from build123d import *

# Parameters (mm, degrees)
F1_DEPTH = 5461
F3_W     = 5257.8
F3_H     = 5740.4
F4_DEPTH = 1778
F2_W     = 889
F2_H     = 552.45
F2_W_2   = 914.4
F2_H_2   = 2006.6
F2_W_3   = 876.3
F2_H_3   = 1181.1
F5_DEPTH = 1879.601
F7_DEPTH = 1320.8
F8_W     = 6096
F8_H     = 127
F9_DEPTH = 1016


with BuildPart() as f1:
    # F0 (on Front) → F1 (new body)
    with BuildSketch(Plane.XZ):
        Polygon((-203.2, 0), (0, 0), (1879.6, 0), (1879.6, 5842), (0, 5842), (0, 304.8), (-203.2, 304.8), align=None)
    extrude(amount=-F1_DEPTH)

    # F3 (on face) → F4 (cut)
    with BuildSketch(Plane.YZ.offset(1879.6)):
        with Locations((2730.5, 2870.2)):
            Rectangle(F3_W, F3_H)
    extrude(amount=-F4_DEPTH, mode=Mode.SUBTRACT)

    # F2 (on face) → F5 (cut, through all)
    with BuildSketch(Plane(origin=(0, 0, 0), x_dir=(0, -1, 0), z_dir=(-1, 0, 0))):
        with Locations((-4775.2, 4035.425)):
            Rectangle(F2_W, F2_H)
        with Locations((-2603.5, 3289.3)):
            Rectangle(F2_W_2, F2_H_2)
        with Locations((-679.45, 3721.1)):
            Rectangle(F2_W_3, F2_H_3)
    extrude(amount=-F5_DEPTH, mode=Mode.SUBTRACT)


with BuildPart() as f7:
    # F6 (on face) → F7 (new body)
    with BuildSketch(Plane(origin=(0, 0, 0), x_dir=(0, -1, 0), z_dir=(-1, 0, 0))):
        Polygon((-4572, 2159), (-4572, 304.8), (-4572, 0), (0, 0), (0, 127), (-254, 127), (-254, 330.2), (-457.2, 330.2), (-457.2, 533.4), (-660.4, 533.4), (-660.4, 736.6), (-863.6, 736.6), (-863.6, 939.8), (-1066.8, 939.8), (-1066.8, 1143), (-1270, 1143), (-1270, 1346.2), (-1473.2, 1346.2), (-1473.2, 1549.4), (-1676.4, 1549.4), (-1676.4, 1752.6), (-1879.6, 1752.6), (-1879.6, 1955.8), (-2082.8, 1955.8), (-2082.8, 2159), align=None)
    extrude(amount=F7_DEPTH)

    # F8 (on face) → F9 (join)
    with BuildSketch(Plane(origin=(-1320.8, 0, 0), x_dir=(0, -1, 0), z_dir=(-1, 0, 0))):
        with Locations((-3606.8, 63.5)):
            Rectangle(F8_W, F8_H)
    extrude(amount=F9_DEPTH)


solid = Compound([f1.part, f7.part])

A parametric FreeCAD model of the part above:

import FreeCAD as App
import Part
import Sketcher
Q = App.Units.Quantity

doc = App.newDocument("Part")
body = doc.addObject("PartDesign::Body", "Body")

sketch1 = doc.addObject("Sketcher::SketchObject", "Sketch")
body.addObject(sketch1)
sketch1.AttachmentSupport = (doc.XZ_Plane, [""])
sketch1.MapMode = "FlatFace"
sketch1.addGeometry(Part.LineSegment(App.Vector(-203, 0, 0), App.Vector(1880, 0, 0)), False)
sketch1.addGeometry(Part.LineSegment(App.Vector(1880, 0, 0), App.Vector(1880, 5842, 0)), False)
sketch1.addGeometry(Part.LineSegment(App.Vector(1880, 5842, 0), App.Vector(0, 5842, 0)), False)
sketch1.addGeometry(Part.LineSegment(App.Vector(0, 5842, 0), App.Vector(0, 305, 0)), False)
sketch1.addGeometry(Part.LineSegment(App.Vector(0, 305, 0), App.Vector(-203, 305, 0)), False)
sketch1.addGeometry(Part.LineSegment(App.Vector(-203, 305, 0), App.Vector(-203, 0, 0)), False)
sketch1.addConstraint(Sketcher.Constraint("Coincident", 0, 2, 1, 1))
sketch1.addConstraint(Sketcher.Constraint("Coincident", 1, 2, 2, 1))
sketch1.addConstraint(Sketcher.Constraint("Coincident", 2, 2, 3, 1))
sketch1.addConstraint(Sketcher.Constraint("Coincident", 3, 2, 4, 1))
sketch1.addConstraint(Sketcher.Constraint("Coincident", 4, 2, 5, 1))
sketch1.addConstraint(Sketcher.Constraint("Coincident", 5, 2, 0, 1))
sketch1.addConstraint(Sketcher.Constraint("Horizontal", 0))
sketch1.addConstraint(Sketcher.Constraint("Vertical", 1))
sketch1.addConstraint(Sketcher.Constraint("Horizontal", 2))
sketch1.addConstraint(Sketcher.Constraint("Vertical", 3))
sketch1.addConstraint(Sketcher.Constraint("Horizontal", 4))
sketch1.addConstraint(Sketcher.Constraint("Vertical", 5))
sketch1.addConstraint(Sketcher.Constraint("PointOnObject", 0, 2, -1))
sketch1.addConstraint(Sketcher.Constraint("PointOnObject", 2, 2, -2))
sketch1.addConstraint(Sketcher.Constraint("DistanceX", 0, 1, 0, 2, Q("82 in")))
sketch1.addConstraint(Sketcher.Constraint("DistanceX", 2, 2, 2, 1, Q("74 in")))
sketch1.addConstraint(Sketcher.Constraint("DistanceY", 1, 1, 1, 2, Q("230 in")))
sketch1.addConstraint(Sketcher.Constraint("DistanceY", 3, 2, 3, 1, Q("218 in")))
pad1 = doc.addObject("PartDesign::Pad", "Pad")
body.addObject(pad1)
pad1.Profile = sketch1
pad1.Length = Q("215 in")
pad1.Reversed = True

sketch2 = doc.addObject("Sketcher::SketchObject", "Sketch001")
body.addObject(sketch2)
sketch2.AttachmentSupport = (doc.YZ_Plane, [""])
sketch2.MapMode = "FlatFace"
sketch2.AttachmentOffset = App.Placement(App.Vector(0, 0, 74 * 25.4), App.Rotation())
sketch2.addGeometry(Part.LineSegment(App.Vector(102, 5740, 0), App.Vector(102, 0, 0)), False)
sketch2.addGeometry(Part.LineSegment(App.Vector(102, 0, 0), App.Vector(5359, 0, 0)), False)
sketch2.addGeometry(Part.LineSegment(App.Vector(5359, 0, 0), App.Vector(5359, 5740, 0)), False)
sketch2.addGeometry(Part.LineSegment(App.Vector(5359, 5740, 0), App.Vector(102, 5740, 0)), False)
sketch2.addConstraint(Sketcher.Constraint("Coincident", 0, 2, 1, 1))
sketch2.addConstraint(Sketcher.Constraint("Coincident", 1, 2, 2, 1))
sketch2.addConstraint(Sketcher.Constraint("Coincident", 2, 2, 3, 1))
sketch2.addConstraint(Sketcher.Constraint("Coincident", 3, 2, 0, 1))
sketch2.addConstraint(Sketcher.Constraint("Vertical", 0))
sketch2.addConstraint(Sketcher.Constraint("Horizontal", 1))
sketch2.addConstraint(Sketcher.Constraint("Vertical", 2))
sketch2.addConstraint(Sketcher.Constraint("Horizontal", 3))
sketch2.addConstraint(Sketcher.Constraint("PointOnObject", 0, 2, -1))
sketch2.addConstraint(Sketcher.Constraint("DistanceX", 1, 1, 1, 2, Q("207 in")))
sketch2.addConstraint(Sketcher.Constraint("DistanceY", 0, 2, 0, 1, Q("226 in")))
sketch2.addConstraint(Sketcher.Constraint("DistanceX", -1, 1, 0, 2, Q("4 in")))
pocket1 = doc.addObject("PartDesign::Pocket", "Pocket")
body.addObject(pocket1)
pocket1.Profile = sketch2
pocket1.Length = Q("70 in")

sketch3 = doc.addObject("Sketcher::SketchObject", "Sketch002")
body.addObject(sketch3)
sketch3.AttachmentSupport = (doc.YZ_Plane, [""])
sketch3.MapMode = "FlatFace"
sketch3.addGeometry(Part.LineSegment(App.Vector(5220, 4312, 0), App.Vector(5220, 3759, 0)), False)
sketch3.addGeometry(Part.LineSegment(App.Vector(5220, 3759, 0), App.Vector(4331, 3759, 0)), False)
sketch3.addGeometry(Part.LineSegment(App.Vector(4331, 3759, 0), App.Vector(4331, 4312, 0)), False)
sketch3.addGeometry(Part.LineSegment(App.Vector(4331, 4312, 0), App.Vector(5220, 4312, 0)), False)
sketch3.addGeometry(Part.LineSegment(App.Vector(3061, 4293, 0), App.Vector(3061, 2286, 0)), False)
sketch3.addGeometry(Part.LineSegment(App.Vector(3061, 2286, 0), App.Vector(2146, 2286, 0)), False)
sketch3.addGeometry(Part.LineSegment(App.Vector(2146, 2286, 0), App.Vector(2146, 4293, 0)), False)
sketch3.addGeometry(Part.LineSegment(App.Vector(2146, 4293, 0), App.Vector(3061, 4293, 0)), False)
sketch3.addGeometry(Part.LineSegment(App.Vector(1118, 4312, 0), App.Vector(1118, 3131, 0)), False)
sketch3.addGeometry(Part.LineSegment(App.Vector(1118, 3131, 0), App.Vector(241, 3131, 0)), False)
sketch3.addGeometry(Part.LineSegment(App.Vector(241, 3131, 0), App.Vector(241, 4312, 0)), False)
sketch3.addGeometry(Part.LineSegment(App.Vector(241, 4312, 0), App.Vector(1118, 4312, 0)), False)
sketch3.addConstraint(Sketcher.Constraint("Coincident", 0, 2, 1, 1))
sketch3.addConstraint(Sketcher.Constraint("Coincident", 1, 2, 2, 1))
sketch3.addConstraint(Sketcher.Constraint("Coincident", 2, 2, 3, 1))
sketch3.addConstraint(Sketcher.Constraint("Coincident", 3, 2, 0, 1))
sketch3.addConstraint(Sketcher.Constraint("Coincident", 4, 2, 5, 1))
sketch3.addConstraint(Sketcher.Constraint("Coincident", 5, 2, 6, 1))
sketch3.addConstraint(Sketcher.Constraint("Coincident", 6, 2, 7, 1))
sketch3.addConstraint(Sketcher.Constraint("Coincident", 7, 2, 4, 1))
sketch3.addConstraint(Sketcher.Constraint("Coincident", 8, 2, 9, 1))
sketch3.addConstraint(Sketcher.Constraint("Coincident", 9, 2, 10, 1))
sketch3.addConstraint(Sketcher.Constraint("Coincident", 10, 2, 11, 1))
sketch3.addConstraint(Sketcher.Constraint("Coincident", 11, 2, 8, 1))
sketch3.addConstraint(Sketcher.Constraint("Vertical", 0))
sketch3.addConstraint(Sketcher.Constraint("Horizontal", 1))
sketch3.addConstraint(Sketcher.Constraint("Vertical", 2))
sketch3.addConstraint(Sketcher.Constraint("Horizontal", 3))
sketch3.addConstraint(Sketcher.Constraint("Vertical", 4))
sketch3.addConstraint(Sketcher.Constraint("Horizontal", 5))
sketch3.addConstraint(Sketcher.Constraint("Vertical", 6))
sketch3.addConstraint(Sketcher.Constraint("Horizontal", 7))
sketch3.addConstraint(Sketcher.Constraint("Vertical", 8))
sketch3.addConstraint(Sketcher.Constraint("Horizontal", 9))
sketch3.addConstraint(Sketcher.Constraint("Vertical", 10))
sketch3.addConstraint(Sketcher.Constraint("Horizontal", 11))
sketch3.addConstraint(Sketcher.Constraint("Horizontal", 3, 2, 10, 2))
sketch3.addConstraint(Sketcher.Constraint("DistanceX", 1, 2, 1, 1, Q("35 in")))
sketch3.addConstraint(Sketcher.Constraint("DistanceX", 5, 2, 5, 1, Q("36 in")))
sketch3.addConstraint(Sketcher.Constraint("DistanceY", 4, 2, 4, 1, Q("79 in")))
sketch3.addConstraint(Sketcher.Constraint("DistanceX", 9, 2, 9, 1, Q("34.5 in")))
sketch3.addConstraint(Sketcher.Constraint("DistanceY", 8, 2, 8, 1, Q("46.5 in")))
sketch3.addConstraint(Sketcher.Constraint("DistanceY", -1, 1, 0, 2, Q("148 in")))
sketch3.addConstraint(Sketcher.Constraint("DistanceY", -1, 1, 4, 2, Q("90 in")))
sketch3.addConstraint(Sketcher.Constraint("DistanceX", -1, 1, 8, 2, Q("44 in")))
sketch3.addConstraint(Sketcher.Constraint("DistanceX", 4, 2, 1, 2, Q("50 in")))
sketch3.addConstraint(Sketcher.Constraint("DistanceX", 9, 2, 5, 2, Q("75 in")))
sketch3.addConstraint(Sketcher.Constraint("DistanceY", 0, 2, 0, 1, Q("21.75 in")))
pocket2 = doc.addObject("PartDesign::Pocket", "Pocket001")
body.addObject(pocket2)
pocket2.Profile = sketch3
pocket2.Type = "ThroughAll"
pocket2.Reversed = True
body2 = doc.addObject("PartDesign::Body", "Body001")

sketch4 = doc.addObject("Sketcher::SketchObject", "Sketch003")
body2.addObject(sketch4)
sketch4.AttachmentSupport = (doc.getObject("YZ_Plane001"), [""])
sketch4.MapMode = "FlatFace"
sketch4.addGeometry(Part.LineSegment(App.Vector(4572, 2159, 0), App.Vector(4572, 0, 0)), False)
sketch4.addGeometry(Part.LineSegment(App.Vector(4572, 0, 0), App.Vector(0, 0, 0)), False)
sketch4.addGeometry(Part.LineSegment(App.Vector(0, 0, 0), App.Vector(0, 127, 0)), False)
sketch4.addGeometry(Part.LineSegment(App.Vector(0, 127, 0), App.Vector(254, 127, 0)), False)
sketch4.addGeometry(Part.LineSegment(App.Vector(254, 127, 0), App.Vector(254, 330, 0)), False)
sketch4.addGeometry(Part.LineSegment(App.Vector(254, 330, 0), App.Vector(457, 330, 0)), False)
sketch4.addGeometry(Part.LineSegment(App.Vector(457, 330, 0), App.Vector(457, 533, 0)), False)
sketch4.addGeometry(Part.LineSegment(App.Vector(457, 533, 0), App.Vector(660, 533, 0)), False)
sketch4.addGeometry(Part.LineSegment(App.Vector(660, 533, 0), App.Vector(660, 737, 0)), False)
sketch4.addGeometry(Part.LineSegment(App.Vector(660, 737, 0), App.Vector(864, 737, 0)), False)
sketch4.addGeometry(Part.LineSegment(App.Vector(864, 737, 0), App.Vector(864, 940, 0)), False)
sketch4.addGeometry(Part.LineSegment(App.Vector(864, 940, 0), App.Vector(1067, 940, 0)), False)
sketch4.addGeometry(Part.LineSegment(App.Vector(1067, 940, 0), App.Vector(1067, 1143, 0)), False)
sketch4.addGeometry(Part.LineSegment(App.Vector(1067, 1143, 0), App.Vector(1270, 1143, 0)), False)
sketch4.addGeometry(Part.LineSegment(App.Vector(1270, 1143, 0), App.Vector(1270, 1346, 0)), False)
sketch4.addGeometry(Part.LineSegment(App.Vector(1270, 1346, 0), App.Vector(1473, 1346, 0)), False)
sketch4.addGeometry(Part.LineSegment(App.Vector(1473, 1346, 0), App.Vector(1473, 1549, 0)), False)
sketch4.addGeometry(Part.LineSegment(App.Vector(1473, 1549, 0), App.Vector(1676, 1549, 0)), False)
sketch4.addGeometry(Part.LineSegment(App.Vector(1676, 1549, 0), App.Vector(1676, 1753, 0)), False)
sketch4.addGeometry(Part.LineSegment(App.Vector(1676, 1753, 0), App.Vector(1880, 1753, 0)), False)
sketch4.addGeometry(Part.LineSegment(App.Vector(1880, 1753, 0), App.Vector(1880, 1956, 0)), False)
sketch4.addGeometry(Part.LineSegment(App.Vector(1880, 1956, 0), App.Vector(2083, 1956, 0)), False)
sketch4.addGeometry(Part.LineSegment(App.Vector(2083, 1956, 0), App.Vector(2083, 2159, 0)), False)
sketch4.addGeometry(Part.LineSegment(App.Vector(2083, 2159, 0), App.Vector(4572, 2159, 0)), False)
sketch4.addConstraint(Sketcher.Constraint("Coincident", 0, 2, 1, 1))
sketch4.addConstraint(Sketcher.Constraint("Coincident", 1, 2, 2, 1))
sketch4.addConstraint(Sketcher.Constraint("Coincident", 2, 2, 3, 1))
sketch4.addConstraint(Sketcher.Constraint("Coincident", 3, 2, 4, 1))
sketch4.addConstraint(Sketcher.Constraint("Coincident", 4, 2, 5, 1))
sketch4.addConstraint(Sketcher.Constraint("Coincident", 5, 2, 6, 1))
sketch4.addConstraint(Sketcher.Constraint("Coincident", 6, 2, 7, 1))
sketch4.addConstraint(Sketcher.Constraint("Coincident", 7, 2, 8, 1))
sketch4.addConstraint(Sketcher.Constraint("Coincident", 8, 2, 9, 1))
sketch4.addConstraint(Sketcher.Constraint("Coincident", 9, 2, 10, 1))
sketch4.addConstraint(Sketcher.Constraint("Coincident", 10, 2, 11, 1))
sketch4.addConstraint(Sketcher.Constraint("Coincident", 11, 2, 12, 1))
sketch4.addConstraint(Sketcher.Constraint("Coincident", 12, 2, 13, 1))
sketch4.addConstraint(Sketcher.Constraint("Coincident", 13, 2, 14, 1))
sketch4.addConstraint(Sketcher.Constraint("Coincident", 14, 2, 15, 1))
sketch4.addConstraint(Sketcher.Constraint("Coincident", 15, 2, 16, 1))
sketch4.addConstraint(Sketcher.Constraint("Coincident", 16, 2, 17, 1))
sketch4.addConstraint(Sketcher.Constraint("Coincident", 17, 2, 18, 1))
sketch4.addConstraint(Sketcher.Constraint("Coincident", 18, 2, 19, 1))
sketch4.addConstraint(Sketcher.Constraint("Coincident", 19, 2, 20, 1))
sketch4.addConstraint(Sketcher.Constraint("Coincident", 20, 2, 21, 1))
sketch4.addConstraint(Sketcher.Constraint("Coincident", 21, 2, 22, 1))
sketch4.addConstraint(Sketcher.Constraint("Coincident", 22, 2, 23, 1))
sketch4.addConstraint(Sketcher.Constraint("Coincident", 23, 2, 0, 1))
sketch4.addConstraint(Sketcher.Constraint("Vertical", 0))
sketch4.addConstraint(Sketcher.Constraint("Horizontal", 1))
sketch4.addConstraint(Sketcher.Constraint("Vertical", 2))
sketch4.addConstraint(Sketcher.Constraint("Horizontal", 3))
sketch4.addConstraint(Sketcher.Constraint("Vertical", 4))
sketch4.addConstraint(Sketcher.Constraint("Horizontal", 5))
sketch4.addConstraint(Sketcher.Constraint("Vertical", 6))
sketch4.addConstraint(Sketcher.Constraint("Horizontal", 7))
sketch4.addConstraint(Sketcher.Constraint("Vertical", 8))
sketch4.addConstraint(Sketcher.Constraint("Horizontal", 9))
sketch4.addConstraint(Sketcher.Constraint("Vertical", 10))
sketch4.addConstraint(Sketcher.Constraint("Horizontal", 11))
sketch4.addConstraint(Sketcher.Constraint("Vertical", 12))
sketch4.addConstraint(Sketcher.Constraint("Horizontal", 13))
sketch4.addConstraint(Sketcher.Constraint("Vertical", 14))
sketch4.addConstraint(Sketcher.Constraint("Horizontal", 15))
sketch4.addConstraint(Sketcher.Constraint("Vertical", 16))
sketch4.addConstraint(Sketcher.Constraint("Horizontal", 17))
sketch4.addConstraint(Sketcher.Constraint("Vertical", 18))
sketch4.addConstraint(Sketcher.Constraint("Horizontal", 19))
sketch4.addConstraint(Sketcher.Constraint("Vertical", 20))
sketch4.addConstraint(Sketcher.Constraint("Horizontal", 21))
sketch4.addConstraint(Sketcher.Constraint("Vertical", 22))
sketch4.addConstraint(Sketcher.Constraint("Horizontal", 23))
sketch4.addConstraint(Sketcher.Constraint("Coincident", 1, 2, -1, 1))
sketch4.addConstraint(Sketcher.Constraint("Equal", 5, 7))
sketch4.addConstraint(Sketcher.Constraint("Equal", 7, 9))
sketch4.addConstraint(Sketcher.Constraint("Equal", 9, 11))
sketch4.addConstraint(Sketcher.Constraint("Equal", 11, 13))
sketch4.addConstraint(Sketcher.Constraint("Equal", 13, 15))
sketch4.addConstraint(Sketcher.Constraint("Equal", 15, 17))
sketch4.addConstraint(Sketcher.Constraint("Equal", 17, 19))
sketch4.addConstraint(Sketcher.Constraint("Equal", 19, 21))
sketch4.addConstraint(Sketcher.Constraint("Equal", 21, 4))
sketch4.addConstraint(Sketcher.Constraint("Equal", 4, 6))
sketch4.addConstraint(Sketcher.Constraint("Equal", 6, 8))
sketch4.addConstraint(Sketcher.Constraint("Equal", 8, 10))
sketch4.addConstraint(Sketcher.Constraint("Equal", 10, 12))
sketch4.addConstraint(Sketcher.Constraint("Equal", 12, 14))
sketch4.addConstraint(Sketcher.Constraint("Equal", 14, 16))
sketch4.addConstraint(Sketcher.Constraint("Equal", 16, 18))
sketch4.addConstraint(Sketcher.Constraint("Equal", 18, 20))
sketch4.addConstraint(Sketcher.Constraint("Equal", 20, 22))
sketch4.addConstraint(Sketcher.Constraint("DistanceX", 1, 2, 1, 1, Q("180 in")))
sketch4.addConstraint(Sketcher.Constraint("DistanceX", 3, 1, 3, 2, Q("10 in")))
sketch4.addConstraint(Sketcher.Constraint("DistanceX", 5, 1, 5, 2, Q("8 in")))
sketch4.addConstraint(Sketcher.Constraint("DistanceY", 0, 2, 0, 1, Q("85 in")))
pad2 = doc.addObject("PartDesign::Pad", "Pad001")
body2.addObject(pad2)
pad2.Profile = sketch4
pad2.Length = Q("52 in")
pad2.Reversed = True

sketch5 = doc.addObject("Sketcher::SketchObject", "Sketch004")
body2.addObject(sketch5)
sketch5.AttachmentSupport = (doc.getObject("YZ_Plane001"), [""])
sketch5.MapMode = "FlatFace"
sketch5.AttachmentOffset = App.Placement(App.Vector(0, 0, -52 * 25.4), App.Rotation())
sketch5.addGeometry(Part.LineSegment(App.Vector(6655, 127, 0), App.Vector(6655, 0, 0)), False)
sketch5.addGeometry(Part.LineSegment(App.Vector(6655, 0, 0), App.Vector(559, 0, 0)), False)
sketch5.addGeometry(Part.LineSegment(App.Vector(559, 0, 0), App.Vector(559, 127, 0)), False)
sketch5.addGeometry(Part.LineSegment(App.Vector(559, 127, 0), App.Vector(6655, 127, 0)), False)
sketch5.addConstraint(Sketcher.Constraint("Coincident", 0, 2, 1, 1))
sketch5.addConstraint(Sketcher.Constraint("Coincident", 1, 2, 2, 1))
sketch5.addConstraint(Sketcher.Constraint("Coincident", 2, 2, 3, 1))
sketch5.addConstraint(Sketcher.Constraint("Coincident", 3, 2, 0, 1))
sketch5.addConstraint(Sketcher.Constraint("Vertical", 0))
sketch5.addConstraint(Sketcher.Constraint("Horizontal", 1))
sketch5.addConstraint(Sketcher.Constraint("Vertical", 2))
sketch5.addConstraint(Sketcher.Constraint("Horizontal", 3))
sketch5.addConstraint(Sketcher.Constraint("PointOnObject", 0, 2, -1))
sketch5.addConstraint(Sketcher.Constraint("DistanceX", 1, 2, 1, 1, Q("240 in")))
sketch5.addConstraint(Sketcher.Constraint("DistanceY", 0, 2, 0, 1, Q("5 in")))
sketch5.addConstraint(Sketcher.Constraint("DistanceX", -1, 1, 0, 2, Q("262 in")))
pad3 = doc.addObject("PartDesign::Pad", "Pad002")
body2.addObject(pad3)
pad3.Profile = sketch5
pad3.Length = Q("40 in")
pad3.Reversed = True

doc.recompute()
